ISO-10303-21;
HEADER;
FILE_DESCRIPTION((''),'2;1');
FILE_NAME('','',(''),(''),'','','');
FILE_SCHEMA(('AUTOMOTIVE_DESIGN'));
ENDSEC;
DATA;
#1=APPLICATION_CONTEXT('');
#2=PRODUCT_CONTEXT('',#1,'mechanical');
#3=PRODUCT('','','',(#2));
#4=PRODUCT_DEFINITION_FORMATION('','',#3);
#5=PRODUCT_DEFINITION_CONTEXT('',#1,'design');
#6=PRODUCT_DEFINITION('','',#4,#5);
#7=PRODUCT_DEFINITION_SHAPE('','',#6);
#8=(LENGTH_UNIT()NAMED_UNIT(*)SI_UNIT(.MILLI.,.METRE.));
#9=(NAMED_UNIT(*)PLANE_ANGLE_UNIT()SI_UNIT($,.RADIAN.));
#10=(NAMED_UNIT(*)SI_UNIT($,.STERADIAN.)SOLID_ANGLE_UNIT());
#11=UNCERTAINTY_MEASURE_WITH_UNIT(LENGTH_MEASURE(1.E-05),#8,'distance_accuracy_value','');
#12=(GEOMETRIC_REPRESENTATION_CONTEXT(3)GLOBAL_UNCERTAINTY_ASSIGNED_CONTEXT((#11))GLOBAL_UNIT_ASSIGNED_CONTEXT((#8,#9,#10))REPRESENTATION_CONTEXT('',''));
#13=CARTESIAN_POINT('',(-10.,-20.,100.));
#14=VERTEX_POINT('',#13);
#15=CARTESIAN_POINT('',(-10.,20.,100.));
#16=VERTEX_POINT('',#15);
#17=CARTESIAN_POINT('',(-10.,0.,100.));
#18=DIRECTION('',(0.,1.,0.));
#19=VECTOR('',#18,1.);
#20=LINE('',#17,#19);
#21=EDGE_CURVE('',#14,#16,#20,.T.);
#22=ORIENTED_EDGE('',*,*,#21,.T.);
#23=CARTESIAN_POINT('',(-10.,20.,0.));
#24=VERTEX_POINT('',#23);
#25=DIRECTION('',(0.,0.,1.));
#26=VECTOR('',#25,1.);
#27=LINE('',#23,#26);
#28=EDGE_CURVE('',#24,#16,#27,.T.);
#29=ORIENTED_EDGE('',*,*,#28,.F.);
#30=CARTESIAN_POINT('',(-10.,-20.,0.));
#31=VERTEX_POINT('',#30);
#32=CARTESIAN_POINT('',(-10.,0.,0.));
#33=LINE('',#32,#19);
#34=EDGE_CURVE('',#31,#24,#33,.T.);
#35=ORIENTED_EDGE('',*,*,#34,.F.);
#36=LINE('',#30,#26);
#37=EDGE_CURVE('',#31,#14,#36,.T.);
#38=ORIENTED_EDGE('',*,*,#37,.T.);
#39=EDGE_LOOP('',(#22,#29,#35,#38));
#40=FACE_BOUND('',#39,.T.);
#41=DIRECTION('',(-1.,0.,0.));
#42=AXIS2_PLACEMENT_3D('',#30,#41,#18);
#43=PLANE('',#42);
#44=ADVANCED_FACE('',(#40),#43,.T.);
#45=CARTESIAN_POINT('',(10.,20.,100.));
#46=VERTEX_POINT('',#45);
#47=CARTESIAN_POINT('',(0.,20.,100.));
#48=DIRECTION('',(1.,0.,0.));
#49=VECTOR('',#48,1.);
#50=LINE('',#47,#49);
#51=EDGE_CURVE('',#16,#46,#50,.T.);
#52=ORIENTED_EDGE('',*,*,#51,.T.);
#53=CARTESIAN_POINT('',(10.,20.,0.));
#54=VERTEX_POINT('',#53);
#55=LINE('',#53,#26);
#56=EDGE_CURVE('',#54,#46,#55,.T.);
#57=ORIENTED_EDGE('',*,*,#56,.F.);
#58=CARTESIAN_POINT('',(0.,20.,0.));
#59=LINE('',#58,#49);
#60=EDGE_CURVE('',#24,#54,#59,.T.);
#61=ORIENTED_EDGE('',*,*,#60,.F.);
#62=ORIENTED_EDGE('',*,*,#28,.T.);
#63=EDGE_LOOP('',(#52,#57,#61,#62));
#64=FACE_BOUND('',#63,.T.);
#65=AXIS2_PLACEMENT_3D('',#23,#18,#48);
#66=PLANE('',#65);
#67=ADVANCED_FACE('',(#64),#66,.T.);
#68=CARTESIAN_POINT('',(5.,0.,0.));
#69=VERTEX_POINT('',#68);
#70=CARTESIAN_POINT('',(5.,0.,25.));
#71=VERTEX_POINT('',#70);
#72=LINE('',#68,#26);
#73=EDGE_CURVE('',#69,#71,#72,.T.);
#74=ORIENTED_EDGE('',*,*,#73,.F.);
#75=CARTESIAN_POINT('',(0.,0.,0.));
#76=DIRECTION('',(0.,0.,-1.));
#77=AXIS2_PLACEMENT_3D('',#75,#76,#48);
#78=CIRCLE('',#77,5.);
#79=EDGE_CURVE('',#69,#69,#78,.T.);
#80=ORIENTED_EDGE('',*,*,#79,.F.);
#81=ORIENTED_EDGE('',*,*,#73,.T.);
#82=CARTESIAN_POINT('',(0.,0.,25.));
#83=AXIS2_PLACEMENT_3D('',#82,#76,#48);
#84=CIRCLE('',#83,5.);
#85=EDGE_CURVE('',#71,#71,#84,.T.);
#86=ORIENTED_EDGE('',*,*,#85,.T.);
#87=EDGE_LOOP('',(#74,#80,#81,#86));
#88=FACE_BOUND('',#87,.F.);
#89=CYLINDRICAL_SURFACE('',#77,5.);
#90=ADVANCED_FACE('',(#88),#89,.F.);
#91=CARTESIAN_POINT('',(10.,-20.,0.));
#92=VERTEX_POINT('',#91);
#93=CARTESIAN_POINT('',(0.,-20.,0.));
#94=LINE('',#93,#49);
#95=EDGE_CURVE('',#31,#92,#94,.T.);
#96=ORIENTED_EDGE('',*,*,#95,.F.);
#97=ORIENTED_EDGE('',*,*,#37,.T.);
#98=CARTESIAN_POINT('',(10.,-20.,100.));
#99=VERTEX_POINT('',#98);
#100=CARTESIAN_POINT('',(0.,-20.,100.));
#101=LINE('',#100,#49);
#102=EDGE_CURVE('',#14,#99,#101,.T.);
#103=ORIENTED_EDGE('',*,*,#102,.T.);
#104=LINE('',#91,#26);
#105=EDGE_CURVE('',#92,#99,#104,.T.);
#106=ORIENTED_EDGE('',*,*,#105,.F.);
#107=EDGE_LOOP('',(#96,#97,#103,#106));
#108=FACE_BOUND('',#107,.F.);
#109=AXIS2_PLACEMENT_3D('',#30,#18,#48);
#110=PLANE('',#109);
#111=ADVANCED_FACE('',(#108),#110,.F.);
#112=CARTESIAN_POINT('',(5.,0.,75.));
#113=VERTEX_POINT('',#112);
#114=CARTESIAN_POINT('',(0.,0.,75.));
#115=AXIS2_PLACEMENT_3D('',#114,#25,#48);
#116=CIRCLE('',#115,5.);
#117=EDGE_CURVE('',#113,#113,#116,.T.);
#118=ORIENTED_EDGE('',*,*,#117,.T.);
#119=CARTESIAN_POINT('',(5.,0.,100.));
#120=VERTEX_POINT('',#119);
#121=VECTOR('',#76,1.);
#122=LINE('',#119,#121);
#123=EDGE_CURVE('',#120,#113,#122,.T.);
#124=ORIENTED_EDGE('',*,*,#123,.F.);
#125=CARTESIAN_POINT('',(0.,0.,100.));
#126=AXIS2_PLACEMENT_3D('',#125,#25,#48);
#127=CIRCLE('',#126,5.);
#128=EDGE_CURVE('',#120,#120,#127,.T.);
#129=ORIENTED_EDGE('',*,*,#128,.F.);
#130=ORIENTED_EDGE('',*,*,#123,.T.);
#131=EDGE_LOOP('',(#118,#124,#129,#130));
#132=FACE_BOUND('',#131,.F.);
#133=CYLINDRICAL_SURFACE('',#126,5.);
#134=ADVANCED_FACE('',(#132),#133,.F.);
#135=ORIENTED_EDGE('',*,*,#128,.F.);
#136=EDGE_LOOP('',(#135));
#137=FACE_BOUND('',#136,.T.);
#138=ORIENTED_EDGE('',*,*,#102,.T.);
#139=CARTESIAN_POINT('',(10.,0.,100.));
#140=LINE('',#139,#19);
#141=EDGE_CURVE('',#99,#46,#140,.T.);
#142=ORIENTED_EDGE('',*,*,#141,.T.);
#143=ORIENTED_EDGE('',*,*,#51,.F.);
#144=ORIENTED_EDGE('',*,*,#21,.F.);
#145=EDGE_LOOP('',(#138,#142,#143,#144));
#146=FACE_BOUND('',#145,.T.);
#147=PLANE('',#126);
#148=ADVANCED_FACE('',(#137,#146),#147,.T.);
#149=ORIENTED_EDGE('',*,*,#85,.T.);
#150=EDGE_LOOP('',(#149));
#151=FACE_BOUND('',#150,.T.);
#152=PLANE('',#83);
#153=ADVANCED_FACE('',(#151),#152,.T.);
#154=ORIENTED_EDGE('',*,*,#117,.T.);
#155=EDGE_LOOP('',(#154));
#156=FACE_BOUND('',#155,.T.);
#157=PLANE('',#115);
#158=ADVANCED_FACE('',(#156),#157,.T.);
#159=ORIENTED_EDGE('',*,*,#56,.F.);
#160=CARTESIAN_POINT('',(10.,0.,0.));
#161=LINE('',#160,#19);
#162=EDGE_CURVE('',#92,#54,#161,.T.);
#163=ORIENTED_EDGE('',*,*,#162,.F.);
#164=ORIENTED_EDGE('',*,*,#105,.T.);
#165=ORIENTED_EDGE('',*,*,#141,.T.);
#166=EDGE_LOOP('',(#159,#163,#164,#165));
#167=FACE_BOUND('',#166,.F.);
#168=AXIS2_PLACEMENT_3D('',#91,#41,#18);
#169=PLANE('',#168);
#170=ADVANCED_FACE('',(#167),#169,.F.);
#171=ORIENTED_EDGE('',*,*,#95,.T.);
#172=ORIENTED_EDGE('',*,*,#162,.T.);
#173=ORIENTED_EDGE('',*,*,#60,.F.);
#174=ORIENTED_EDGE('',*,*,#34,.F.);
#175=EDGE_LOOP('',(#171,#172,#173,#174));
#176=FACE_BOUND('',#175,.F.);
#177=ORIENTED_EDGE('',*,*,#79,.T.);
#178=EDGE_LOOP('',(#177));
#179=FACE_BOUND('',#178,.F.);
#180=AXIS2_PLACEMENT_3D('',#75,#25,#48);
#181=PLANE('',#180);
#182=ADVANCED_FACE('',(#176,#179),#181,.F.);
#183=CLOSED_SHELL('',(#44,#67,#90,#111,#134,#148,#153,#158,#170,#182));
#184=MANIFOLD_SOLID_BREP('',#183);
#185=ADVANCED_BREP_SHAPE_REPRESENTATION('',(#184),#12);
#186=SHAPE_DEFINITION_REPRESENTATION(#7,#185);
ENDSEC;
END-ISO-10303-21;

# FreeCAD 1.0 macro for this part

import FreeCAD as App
import Part
import Sketcher

V = App.Vector
Q = App.Units.Quantity

doc = App.newDocument("Part")
body = doc.addObject("PartDesign::Body", "Body")

sketch1 = body.newObject("Sketcher::SketchObject", "Sketch")
sketch1.AttachmentSupport = (doc.getObject("XY_Plane"), [""])
sketch1.MapMode = "FlatFace"
sketch1.addGeometry([
    Part.LineSegment(V(-10, 20, 0), V(-10, -20, 0)),
    Part.LineSegment(V(-10, -20, 0), V(10, -20, 0)),
    Part.LineSegment(V(10, -20, 0), V(10, 20, 0)),
    Part.LineSegment(V(10, 20, 0), V(-10, 20, 0)),
], False)
sketch1.addConstraint([
    Sketcher.Constraint("Coincident", 0, 2, 1, 1),
    Sketcher.Constraint("Coincident", 1, 2, 2, 1),
    Sketcher.Constraint("Coincident", 2, 2, 3, 1),
    Sketcher.Constraint("Coincident", 3, 2, 0, 1),
    Sketcher.Constraint("Vertical", 0),
    Sketcher.Constraint("Horizontal", 1),
    Sketcher.Constraint("Vertical", 2),
    Sketcher.Constraint("Horizontal", 3),
    Sketcher.Constraint("Symmetric", 0, 2, 2, 2, -1, 1),
    Sketcher.Constraint("DistanceX", 1, 1, 1, 2, Q("20 mm")),
    Sketcher.Constraint("DistanceY", 0, 2, 0, 1, Q("40 mm")),
])
pad1 = body.newObject("PartDesign::Pad", "Pad")
pad1.Profile = sketch1
pad1.Length = 100

sketch2 = body.newObject("Sketcher::SketchObject", "Sketch001")
sketch2.AttachmentSupport = (doc.getObject("XY_Plane"), [""])
sketch2.MapMode = "FlatFace"
sketch2.AttachmentOffset = App.Placement(V(0, 0, 100), App.Rotation())
sketch2.addGeometry(Part.Circle(V(0, 0, 0), V(0, 0, 1), 5), False)
sketch2.addConstraint([
    Sketcher.Constraint("Coincident", 0, 3, -1, 1),
    Sketcher.Constraint("Diameter", 0, Q("10 mm")),
])
pocket1 = body.newObject("PartDesign::Pocket", "Pocket")
pocket1.Profile = sketch2
pocket1.Length = 25

sketch3 = body.newObject("Sketcher::SketchObject", "Sketch002")
sketch3.AttachmentSupport = (doc.getObject("XY_Plane"), [""])
sketch3.MapMode = "FlatFace"
sketch3.addGeometry(Part.Circle(V(0, 0, 0), V(0, 0, 1), 5), False)
sketch3.addConstraint([
    Sketcher.Constraint("Coincident", 0, 3, -1, 1),
    Sketcher.Constraint("Diameter", 0, Q("10 mm")),
])
pocket2 = body.newObject("PartDesign::Pocket", "Pocket001")
pocket2.Profile = sketch3
pocket2.Length = 25
pocket2.Reversed = True

doc.recompute()
